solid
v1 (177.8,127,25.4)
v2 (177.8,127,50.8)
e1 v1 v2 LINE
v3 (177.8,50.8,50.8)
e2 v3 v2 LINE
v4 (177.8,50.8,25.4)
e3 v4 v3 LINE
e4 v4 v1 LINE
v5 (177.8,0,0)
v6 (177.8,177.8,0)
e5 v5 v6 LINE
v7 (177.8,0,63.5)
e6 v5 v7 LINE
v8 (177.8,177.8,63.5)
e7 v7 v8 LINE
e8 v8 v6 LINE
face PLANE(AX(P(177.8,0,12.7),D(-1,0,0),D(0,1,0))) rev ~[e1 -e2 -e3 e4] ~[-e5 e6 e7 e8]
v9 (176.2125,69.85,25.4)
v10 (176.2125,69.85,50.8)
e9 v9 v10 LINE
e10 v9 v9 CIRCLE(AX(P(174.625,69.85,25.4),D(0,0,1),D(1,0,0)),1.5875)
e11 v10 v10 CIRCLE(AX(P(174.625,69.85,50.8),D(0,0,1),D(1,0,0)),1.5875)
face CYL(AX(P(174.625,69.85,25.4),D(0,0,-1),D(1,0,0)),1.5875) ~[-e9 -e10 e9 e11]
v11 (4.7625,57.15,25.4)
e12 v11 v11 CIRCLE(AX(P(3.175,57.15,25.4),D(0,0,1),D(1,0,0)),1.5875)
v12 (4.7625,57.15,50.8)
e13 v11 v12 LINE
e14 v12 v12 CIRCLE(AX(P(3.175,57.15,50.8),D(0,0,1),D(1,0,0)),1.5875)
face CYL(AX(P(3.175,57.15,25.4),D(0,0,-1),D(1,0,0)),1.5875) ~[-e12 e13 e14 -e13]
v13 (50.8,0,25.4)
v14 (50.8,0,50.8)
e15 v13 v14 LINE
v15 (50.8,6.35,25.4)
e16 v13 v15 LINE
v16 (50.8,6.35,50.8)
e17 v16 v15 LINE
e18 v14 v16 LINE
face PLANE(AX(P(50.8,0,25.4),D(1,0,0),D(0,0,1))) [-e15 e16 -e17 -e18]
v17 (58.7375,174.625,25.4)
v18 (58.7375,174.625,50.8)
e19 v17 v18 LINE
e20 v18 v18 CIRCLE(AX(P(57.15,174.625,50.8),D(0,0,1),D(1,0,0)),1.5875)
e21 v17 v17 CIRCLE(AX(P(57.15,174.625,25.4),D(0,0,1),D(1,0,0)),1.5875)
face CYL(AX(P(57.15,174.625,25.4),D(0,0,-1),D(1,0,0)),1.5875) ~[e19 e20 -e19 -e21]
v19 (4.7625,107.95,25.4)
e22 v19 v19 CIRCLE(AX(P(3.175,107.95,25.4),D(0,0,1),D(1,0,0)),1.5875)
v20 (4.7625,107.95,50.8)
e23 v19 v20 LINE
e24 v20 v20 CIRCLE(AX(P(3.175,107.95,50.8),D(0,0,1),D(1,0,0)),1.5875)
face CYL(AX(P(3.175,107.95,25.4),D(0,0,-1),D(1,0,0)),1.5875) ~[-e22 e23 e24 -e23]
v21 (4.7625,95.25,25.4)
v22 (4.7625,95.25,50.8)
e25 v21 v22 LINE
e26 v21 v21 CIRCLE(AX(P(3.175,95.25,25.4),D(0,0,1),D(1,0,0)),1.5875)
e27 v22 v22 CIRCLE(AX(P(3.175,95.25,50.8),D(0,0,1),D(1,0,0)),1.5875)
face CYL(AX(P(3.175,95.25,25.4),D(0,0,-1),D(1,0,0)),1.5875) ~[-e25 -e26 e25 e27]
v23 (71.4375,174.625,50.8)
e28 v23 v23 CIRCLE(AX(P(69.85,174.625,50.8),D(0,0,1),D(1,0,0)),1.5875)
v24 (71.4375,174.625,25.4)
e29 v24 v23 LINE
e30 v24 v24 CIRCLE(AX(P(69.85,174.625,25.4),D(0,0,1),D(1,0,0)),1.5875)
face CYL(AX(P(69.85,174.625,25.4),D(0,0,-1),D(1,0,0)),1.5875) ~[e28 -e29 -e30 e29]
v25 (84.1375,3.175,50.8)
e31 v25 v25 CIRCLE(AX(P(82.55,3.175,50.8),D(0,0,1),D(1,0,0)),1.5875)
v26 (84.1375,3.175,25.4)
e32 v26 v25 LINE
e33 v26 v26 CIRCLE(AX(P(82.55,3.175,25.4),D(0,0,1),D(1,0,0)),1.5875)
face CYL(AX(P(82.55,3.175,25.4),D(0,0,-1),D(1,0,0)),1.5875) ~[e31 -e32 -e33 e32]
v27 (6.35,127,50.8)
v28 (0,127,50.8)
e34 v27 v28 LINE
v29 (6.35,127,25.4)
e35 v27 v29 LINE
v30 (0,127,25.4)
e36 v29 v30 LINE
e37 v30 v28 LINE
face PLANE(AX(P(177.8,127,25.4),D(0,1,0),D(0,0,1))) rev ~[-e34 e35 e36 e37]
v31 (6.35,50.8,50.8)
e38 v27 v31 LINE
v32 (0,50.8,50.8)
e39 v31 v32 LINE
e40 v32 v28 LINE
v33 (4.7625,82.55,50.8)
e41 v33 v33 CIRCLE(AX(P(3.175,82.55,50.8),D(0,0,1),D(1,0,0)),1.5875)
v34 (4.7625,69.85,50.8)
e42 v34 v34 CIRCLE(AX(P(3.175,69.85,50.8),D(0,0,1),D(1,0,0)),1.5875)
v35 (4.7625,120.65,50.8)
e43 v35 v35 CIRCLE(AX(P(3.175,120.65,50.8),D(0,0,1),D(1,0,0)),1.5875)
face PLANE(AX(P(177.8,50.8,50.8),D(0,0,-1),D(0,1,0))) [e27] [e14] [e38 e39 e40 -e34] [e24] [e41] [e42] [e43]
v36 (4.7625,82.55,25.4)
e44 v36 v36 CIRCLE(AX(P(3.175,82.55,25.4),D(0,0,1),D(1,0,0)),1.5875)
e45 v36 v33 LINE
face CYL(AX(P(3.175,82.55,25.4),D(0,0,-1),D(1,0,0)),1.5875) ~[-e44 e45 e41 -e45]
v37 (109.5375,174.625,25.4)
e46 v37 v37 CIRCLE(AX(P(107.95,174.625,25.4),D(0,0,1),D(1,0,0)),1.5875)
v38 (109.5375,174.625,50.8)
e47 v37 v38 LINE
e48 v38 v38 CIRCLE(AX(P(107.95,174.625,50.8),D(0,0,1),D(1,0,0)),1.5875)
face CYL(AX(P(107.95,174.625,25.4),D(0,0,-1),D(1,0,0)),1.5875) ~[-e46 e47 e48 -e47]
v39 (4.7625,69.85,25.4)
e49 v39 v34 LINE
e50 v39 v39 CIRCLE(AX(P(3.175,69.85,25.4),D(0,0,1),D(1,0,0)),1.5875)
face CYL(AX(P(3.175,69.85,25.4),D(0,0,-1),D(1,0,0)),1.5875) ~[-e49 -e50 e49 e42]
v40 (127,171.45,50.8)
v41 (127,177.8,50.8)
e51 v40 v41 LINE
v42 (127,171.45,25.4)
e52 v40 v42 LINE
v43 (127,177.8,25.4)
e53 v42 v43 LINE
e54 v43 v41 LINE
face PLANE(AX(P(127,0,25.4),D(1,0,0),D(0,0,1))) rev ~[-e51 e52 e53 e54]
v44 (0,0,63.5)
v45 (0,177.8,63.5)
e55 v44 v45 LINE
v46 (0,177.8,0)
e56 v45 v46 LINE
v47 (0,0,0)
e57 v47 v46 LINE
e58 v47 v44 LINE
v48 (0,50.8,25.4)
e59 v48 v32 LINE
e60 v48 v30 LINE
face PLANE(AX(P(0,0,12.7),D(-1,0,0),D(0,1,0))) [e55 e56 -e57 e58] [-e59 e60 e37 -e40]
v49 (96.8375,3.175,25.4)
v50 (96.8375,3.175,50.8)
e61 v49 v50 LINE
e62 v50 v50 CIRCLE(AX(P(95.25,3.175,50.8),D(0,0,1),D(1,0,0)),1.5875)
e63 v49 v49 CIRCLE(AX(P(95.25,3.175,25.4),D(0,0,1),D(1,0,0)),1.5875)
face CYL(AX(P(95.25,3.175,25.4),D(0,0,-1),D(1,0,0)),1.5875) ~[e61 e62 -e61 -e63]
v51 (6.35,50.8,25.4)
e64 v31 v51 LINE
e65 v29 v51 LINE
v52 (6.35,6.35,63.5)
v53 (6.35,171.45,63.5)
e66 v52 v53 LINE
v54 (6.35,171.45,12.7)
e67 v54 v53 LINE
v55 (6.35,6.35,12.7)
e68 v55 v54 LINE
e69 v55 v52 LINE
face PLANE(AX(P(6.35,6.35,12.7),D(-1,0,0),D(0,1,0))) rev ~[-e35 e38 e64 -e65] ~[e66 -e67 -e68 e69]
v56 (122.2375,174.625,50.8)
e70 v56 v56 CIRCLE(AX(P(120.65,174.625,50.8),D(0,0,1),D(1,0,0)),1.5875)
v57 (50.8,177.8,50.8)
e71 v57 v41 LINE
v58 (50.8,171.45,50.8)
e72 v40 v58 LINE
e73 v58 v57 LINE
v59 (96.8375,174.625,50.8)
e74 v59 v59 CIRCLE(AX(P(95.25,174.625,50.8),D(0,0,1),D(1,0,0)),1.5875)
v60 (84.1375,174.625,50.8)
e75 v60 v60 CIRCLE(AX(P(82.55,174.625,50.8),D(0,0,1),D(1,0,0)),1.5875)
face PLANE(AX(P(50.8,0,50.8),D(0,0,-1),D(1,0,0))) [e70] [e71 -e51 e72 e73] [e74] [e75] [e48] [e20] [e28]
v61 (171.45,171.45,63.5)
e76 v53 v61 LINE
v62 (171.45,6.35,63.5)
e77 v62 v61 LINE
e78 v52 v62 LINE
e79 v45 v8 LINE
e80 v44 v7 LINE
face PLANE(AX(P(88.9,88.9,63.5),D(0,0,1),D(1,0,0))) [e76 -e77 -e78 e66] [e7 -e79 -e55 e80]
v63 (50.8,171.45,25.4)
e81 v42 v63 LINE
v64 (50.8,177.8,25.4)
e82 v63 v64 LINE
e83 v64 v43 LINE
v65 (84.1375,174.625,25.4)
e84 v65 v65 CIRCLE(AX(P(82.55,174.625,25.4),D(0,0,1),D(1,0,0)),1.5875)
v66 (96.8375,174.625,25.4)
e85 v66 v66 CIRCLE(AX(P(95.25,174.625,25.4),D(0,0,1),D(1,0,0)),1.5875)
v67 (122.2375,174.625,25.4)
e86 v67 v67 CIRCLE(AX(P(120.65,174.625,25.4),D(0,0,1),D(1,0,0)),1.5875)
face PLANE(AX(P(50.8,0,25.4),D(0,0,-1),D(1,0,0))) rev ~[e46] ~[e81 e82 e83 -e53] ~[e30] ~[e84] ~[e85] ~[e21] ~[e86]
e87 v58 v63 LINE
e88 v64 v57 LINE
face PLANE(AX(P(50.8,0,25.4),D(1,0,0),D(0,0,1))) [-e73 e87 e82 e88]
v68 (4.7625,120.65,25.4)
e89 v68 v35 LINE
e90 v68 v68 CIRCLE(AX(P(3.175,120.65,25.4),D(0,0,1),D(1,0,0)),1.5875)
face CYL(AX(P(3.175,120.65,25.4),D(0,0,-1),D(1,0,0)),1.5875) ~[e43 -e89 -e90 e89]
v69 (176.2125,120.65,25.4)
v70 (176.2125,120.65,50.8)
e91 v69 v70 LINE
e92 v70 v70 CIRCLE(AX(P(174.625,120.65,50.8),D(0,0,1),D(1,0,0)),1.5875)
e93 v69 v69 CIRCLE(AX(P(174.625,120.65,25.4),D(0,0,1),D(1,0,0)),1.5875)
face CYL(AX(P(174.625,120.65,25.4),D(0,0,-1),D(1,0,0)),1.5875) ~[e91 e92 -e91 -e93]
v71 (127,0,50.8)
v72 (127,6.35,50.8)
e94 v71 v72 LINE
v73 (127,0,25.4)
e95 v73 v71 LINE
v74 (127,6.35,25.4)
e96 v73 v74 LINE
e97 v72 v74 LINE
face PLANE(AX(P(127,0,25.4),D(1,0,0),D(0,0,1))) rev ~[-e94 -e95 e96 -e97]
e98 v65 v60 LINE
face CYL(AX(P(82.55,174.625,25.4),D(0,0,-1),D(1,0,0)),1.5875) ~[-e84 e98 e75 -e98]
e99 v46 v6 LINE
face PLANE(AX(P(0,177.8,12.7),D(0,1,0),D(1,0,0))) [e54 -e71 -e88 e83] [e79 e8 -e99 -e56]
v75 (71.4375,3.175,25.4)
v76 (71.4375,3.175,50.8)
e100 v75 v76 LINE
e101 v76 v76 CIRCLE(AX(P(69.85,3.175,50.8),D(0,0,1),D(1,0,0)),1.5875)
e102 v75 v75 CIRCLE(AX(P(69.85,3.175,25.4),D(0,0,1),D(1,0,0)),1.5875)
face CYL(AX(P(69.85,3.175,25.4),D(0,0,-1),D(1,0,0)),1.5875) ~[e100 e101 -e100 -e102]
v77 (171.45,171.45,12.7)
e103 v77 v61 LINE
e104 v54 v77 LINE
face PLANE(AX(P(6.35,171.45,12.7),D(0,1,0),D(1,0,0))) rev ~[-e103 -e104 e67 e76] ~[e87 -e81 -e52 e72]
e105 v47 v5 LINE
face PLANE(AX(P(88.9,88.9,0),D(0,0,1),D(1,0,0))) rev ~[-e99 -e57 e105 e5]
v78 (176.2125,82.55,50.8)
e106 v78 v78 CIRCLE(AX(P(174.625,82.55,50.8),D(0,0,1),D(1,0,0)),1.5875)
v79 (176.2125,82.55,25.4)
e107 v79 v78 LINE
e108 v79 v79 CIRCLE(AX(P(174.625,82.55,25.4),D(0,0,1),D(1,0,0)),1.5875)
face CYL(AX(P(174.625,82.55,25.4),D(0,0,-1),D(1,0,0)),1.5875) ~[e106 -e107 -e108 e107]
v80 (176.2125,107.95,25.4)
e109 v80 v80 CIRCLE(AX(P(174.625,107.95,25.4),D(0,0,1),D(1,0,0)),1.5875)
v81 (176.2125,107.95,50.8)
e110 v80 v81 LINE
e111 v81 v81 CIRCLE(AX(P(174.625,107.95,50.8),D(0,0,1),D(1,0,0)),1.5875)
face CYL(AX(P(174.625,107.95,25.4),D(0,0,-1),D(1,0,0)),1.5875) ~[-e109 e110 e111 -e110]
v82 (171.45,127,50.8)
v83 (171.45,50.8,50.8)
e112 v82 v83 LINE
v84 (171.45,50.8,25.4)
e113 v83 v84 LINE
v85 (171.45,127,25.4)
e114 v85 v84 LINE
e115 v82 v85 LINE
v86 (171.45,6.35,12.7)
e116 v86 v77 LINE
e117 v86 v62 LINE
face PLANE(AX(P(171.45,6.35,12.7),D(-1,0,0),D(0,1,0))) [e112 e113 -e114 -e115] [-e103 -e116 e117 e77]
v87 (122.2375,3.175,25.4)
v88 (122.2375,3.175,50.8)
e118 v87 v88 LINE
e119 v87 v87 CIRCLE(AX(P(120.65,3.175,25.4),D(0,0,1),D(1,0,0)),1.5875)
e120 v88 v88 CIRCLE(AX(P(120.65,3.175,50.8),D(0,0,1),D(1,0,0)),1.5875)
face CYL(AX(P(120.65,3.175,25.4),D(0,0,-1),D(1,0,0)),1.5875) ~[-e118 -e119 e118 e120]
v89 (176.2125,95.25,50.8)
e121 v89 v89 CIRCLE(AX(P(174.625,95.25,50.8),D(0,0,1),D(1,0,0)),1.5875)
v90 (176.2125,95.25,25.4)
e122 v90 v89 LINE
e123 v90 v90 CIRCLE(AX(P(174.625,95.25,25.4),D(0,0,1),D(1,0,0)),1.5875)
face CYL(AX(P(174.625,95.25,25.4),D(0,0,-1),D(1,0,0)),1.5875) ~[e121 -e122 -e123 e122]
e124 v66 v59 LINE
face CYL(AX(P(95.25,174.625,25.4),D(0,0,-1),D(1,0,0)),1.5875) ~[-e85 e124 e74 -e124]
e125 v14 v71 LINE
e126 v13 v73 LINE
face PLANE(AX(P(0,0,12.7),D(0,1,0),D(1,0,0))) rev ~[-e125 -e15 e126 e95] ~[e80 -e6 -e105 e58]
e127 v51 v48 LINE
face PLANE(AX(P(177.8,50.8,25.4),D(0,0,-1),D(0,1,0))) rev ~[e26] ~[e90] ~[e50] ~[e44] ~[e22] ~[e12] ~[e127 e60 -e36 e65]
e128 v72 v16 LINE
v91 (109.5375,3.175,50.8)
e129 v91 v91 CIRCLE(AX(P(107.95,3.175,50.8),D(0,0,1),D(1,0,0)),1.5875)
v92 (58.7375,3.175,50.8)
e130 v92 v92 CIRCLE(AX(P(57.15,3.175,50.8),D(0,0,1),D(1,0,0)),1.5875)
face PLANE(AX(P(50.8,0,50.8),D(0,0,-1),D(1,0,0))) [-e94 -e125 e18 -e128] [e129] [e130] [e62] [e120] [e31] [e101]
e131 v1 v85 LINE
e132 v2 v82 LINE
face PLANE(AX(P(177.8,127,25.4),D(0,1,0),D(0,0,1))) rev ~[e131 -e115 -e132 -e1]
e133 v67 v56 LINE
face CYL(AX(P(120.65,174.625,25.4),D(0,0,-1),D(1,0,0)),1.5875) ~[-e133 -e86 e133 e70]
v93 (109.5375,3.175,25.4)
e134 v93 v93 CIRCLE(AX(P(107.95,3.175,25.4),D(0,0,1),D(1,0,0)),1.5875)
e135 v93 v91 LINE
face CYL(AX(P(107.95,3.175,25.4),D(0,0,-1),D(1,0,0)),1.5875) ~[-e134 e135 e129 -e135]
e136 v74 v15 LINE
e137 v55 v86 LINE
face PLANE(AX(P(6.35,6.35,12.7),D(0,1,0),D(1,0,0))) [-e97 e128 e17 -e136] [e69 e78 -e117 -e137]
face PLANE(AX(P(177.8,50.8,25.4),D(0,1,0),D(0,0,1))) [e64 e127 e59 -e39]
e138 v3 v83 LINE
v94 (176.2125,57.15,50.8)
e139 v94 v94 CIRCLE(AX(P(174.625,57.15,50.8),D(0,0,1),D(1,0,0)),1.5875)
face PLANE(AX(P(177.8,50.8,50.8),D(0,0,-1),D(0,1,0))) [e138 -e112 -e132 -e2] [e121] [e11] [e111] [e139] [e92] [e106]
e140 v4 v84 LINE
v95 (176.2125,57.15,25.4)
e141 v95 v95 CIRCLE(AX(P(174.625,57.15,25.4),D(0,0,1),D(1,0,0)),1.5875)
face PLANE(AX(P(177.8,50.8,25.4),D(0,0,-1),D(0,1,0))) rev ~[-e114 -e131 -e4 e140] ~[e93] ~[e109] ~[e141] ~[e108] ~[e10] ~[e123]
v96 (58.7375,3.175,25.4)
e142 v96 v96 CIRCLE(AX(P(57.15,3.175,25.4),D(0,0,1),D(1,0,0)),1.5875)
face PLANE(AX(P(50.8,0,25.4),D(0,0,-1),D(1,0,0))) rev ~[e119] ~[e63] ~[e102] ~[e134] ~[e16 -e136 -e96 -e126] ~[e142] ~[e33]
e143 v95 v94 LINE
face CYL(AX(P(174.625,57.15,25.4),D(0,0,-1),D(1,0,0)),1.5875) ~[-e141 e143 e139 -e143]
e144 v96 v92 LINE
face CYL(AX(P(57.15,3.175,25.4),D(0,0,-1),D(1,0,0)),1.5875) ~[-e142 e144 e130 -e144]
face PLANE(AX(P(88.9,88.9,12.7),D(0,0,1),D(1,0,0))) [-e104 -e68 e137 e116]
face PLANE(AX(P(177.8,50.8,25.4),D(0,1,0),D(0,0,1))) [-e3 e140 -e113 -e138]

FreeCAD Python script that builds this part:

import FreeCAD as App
import Part
import Sketcher
Q = App.Units.Quantity


def add_polygon(sketch, points):
    """Adds a closed chain of lines whose ends are joined by coincident constraints."""
    first, n = sketch.GeometryCount, len(points)
    for a, b in zip(points, points[1:] + points[:1]):
        sketch.addGeometry(Part.LineSegment(App.Vector(*a, 0), App.Vector(*b, 0)), False)
    for i in range(n):
        sketch.addConstraint(Sketcher.Constraint("Coincident", first + i, 2, first + (i + 1) % n, 1))

doc = App.newDocument("Part")
body = doc.addObject("PartDesign::Body", "Body")

# Sketch on XY plane
sketch1 = body.newObject("Sketcher::SketchObject", "Sketch")
sketch1.AttachmentSupport = (doc.getObject("XY_Plane"), [""])
sketch1.MapMode = "FlatFace"
add_polygon(sketch1, [(0, 178), (0, 0), (178, 0), (178, 178)])  # lines 0-3
sketch1.addConstraint([
    Sketcher.Constraint("Vertical", 0),
    Sketcher.Constraint("Horizontal", 1),
    Sketcher.Constraint("Vertical", 2),
    Sketcher.Constraint("Horizontal", 3),
    Sketcher.Constraint("Coincident", 0, 2, -1, 1),
    Sketcher.Constraint("Equal", 3, 0),
    Sketcher.Constraint("DistanceX", 1, 1, 1, 2, Q("7 in")),
])
pad1 = body.newObject("PartDesign::Pad", "Pad")
pad1.Profile = sketch1
pad1.Length = Q("0.5 in")

# Sketch on XY plane
sketch2 = body.newObject("Sketcher::SketchObject", "Sketch001")
sketch2.AttachmentSupport = (doc.getObject("XY_Plane"), [""])
sketch2.MapMode = "FlatFace"
sketch2.AttachmentOffset = App.Placement(App.Vector(0, 0, 0.5 * 25.4), App.Rotation())
add_polygon(sketch2, [(0, 178), (0, 0), (178, 0), (178, 178)])  # lines 0-3
add_polygon(sketch2, [(171, 6), (6, 6), (6, 171), (171, 171)])  # lines 4-7
sketch2.addConstraint([
    Sketcher.Constraint("Vertical", 0),
    Sketcher.Constraint("Horizontal", 1),
    Sketcher.Constraint("Vertical", 2),
    Sketcher.Constraint("Horizontal", 3),
    Sketcher.Constraint("Horizontal", 4),
    Sketcher.Constraint("Vertical", 5),
    Sketcher.Constraint("Horizontal", 6),
    Sketcher.Constraint("Vertical", 7),
    Sketcher.Constraint("Coincident", 0, 2, -1, 1),
    Sketcher.Constraint("Equal", 3, 0),
    Sketcher.Constraint("Equal", 6, 5),
    Sketcher.Constraint("DistanceX", 1, 1, 1, 2, Q("7 in")),
    Sketcher.Constraint("DistanceX", 4, 2, 4, 1, Q("6.5 in")),
    Sketcher.Constraint("DistanceX", -1, 1, 4, 2, Q("0.25 in")),
    Sketcher.Constraint("DistanceY", -1, 1, 4, 2, Q("0.25 in")),
])
pad2 = body.newObject("PartDesign::Pad", "Pad001")
pad2.Profile = sketch2
pad2.Length = Q("2 in")

# Sketch on YZ plane
sketch3 = body.newObject("Sketcher::SketchObject", "Sketch002")
sketch3.AttachmentSupport = (doc.getObject("YZ_Plane"), [""])
sketch3.MapMode = "FlatFace"
sketch3.AttachmentOffset = App.Placement(App.Vector(0, 0, 7 * 25.4), App.Rotation())
add_polygon(sketch3, [(51, 51), (51, 25), (127, 25), (127, 51)])  # lines 0-3
sketch3.addConstraint([
    Sketcher.Constraint("Vertical", 0),
    Sketcher.Constraint("Horizontal", 1),
    Sketcher.Constraint("Vertical", 2),
    Sketcher.Constraint("Horizontal", 3),
    Sketcher.Constraint("DistanceX", 1, 1, 1, 2, Q("3 in")),
    Sketcher.Constraint("DistanceY", 0, 2, 0, 1, Q("1 in")),
    Sketcher.Constraint("DistanceX", -1, 1, 0, 2, Q("2 in")),
    Sketcher.Constraint("DistanceY", -1, 1, 0, 2, Q("1 in")),
])
pocket1 = body.newObject("PartDesign::Pocket", "Pocket")
pocket1.Profile = sketch3
pocket1.Type = "ThroughAll"

# Sketch on XZ plane
sketch4 = body.newObject("Sketcher::SketchObject", "Sketch003")
sketch4.AttachmentSupport = (doc.getObject("XZ_Plane"), [""])
sketch4.MapMode = "FlatFace"
add_polygon(sketch4, [(51, 51), (51, 25), (127, 25), (127, 51)])  # lines 0-3
sketch4.addConstraint([
    Sketcher.Constraint("Vertical", 0),
    Sketcher.Constraint("Horizontal", 1),
    Sketcher.Constraint("Vertical", 2),
    Sketcher.Constraint("Horizontal", 3),
    Sketcher.Constraint("DistanceX", 1, 1, 1, 2, Q("3 in")),
    Sketcher.Constraint("DistanceY", 0, 2, 0, 1, Q("1 in")),
    Sketcher.Constraint("DistanceX", -1, 1, 0, 2, Q("2 in")),
    Sketcher.Constraint("DistanceY", -1, 1, 0, 2, Q("1 in")),
])
pocket2 = body.newObject("PartDesign::Pocket", "Pocket001")
pocket2.Profile = sketch4
pocket2.Type = "ThroughAll"

# Sketch on XY plane
sketch5 = body.newObject("Sketcher::SketchObject", "Sketch004")
sketch5.AttachmentSupport = (doc.getObject("XY_Plane"), [""])
sketch5.MapMode = "FlatFace"
sketch5.AttachmentOffset = App.Placement(App.Vector(0, 0, 1 * 25.4), App.Rotation())
sketch5.addGeometry([
    Part.Circle(App.Vector(174.6, 69.8, 0), App.Vector(0, 0, 1), 1.6),  # 0
    Part.Circle(App.Vector(174.6, 57.1, 0), App.Vector(0, 0, 1), 1.6),  # 1
    Part.Circle(App.Vector(174.6, 82.5, 0), App.Vector(0, 0, 1), 1.6),  # 2
    Part.Circle(App.Vector(174.6, 108, 0), App.Vector(0, 0, 1), 1.6),  # 3
    Part.Circle(App.Vector(174.6, 120.7, 0), App.Vector(0, 0, 1), 1.6),  # 4
    Part.Circle(App.Vector(174.6, 95.2, 0), App.Vector(0, 0, 1), 1.6),  # 5
    Part.Circle(App.Vector(69.8, 174.6, 0), App.Vector(0, 0, 1), 1.6),  # 6
    Part.Circle(App.Vector(57.1, 174.6, 0), App.Vector(0, 0, 1), 1.6),  # 7
    Part.Circle(App.Vector(82.5, 174.6, 0), App.Vector(0, 0, 1), 1.6),  # 8
    Part.Circle(App.Vector(108, 174.6, 0), App.Vector(0, 0, 1), 1.6),  # 9
    Part.Circle(App.Vector(120.7, 174.6, 0), App.Vector(0, 0, 1), 1.6),  # 10
    Part.Circle(App.Vector(95.2, 174.6, 0), App.Vector(0, 0, 1), 1.6),  # 11
    Part.Circle(App.Vector(69.8, 3.2, 0), App.Vector(0, 0, 1), 1.6),  # 12
    Part.Circle(App.Vector(57.1, 3.2, 0), App.Vector(0, 0, 1), 1.6),  # 13
    Part.Circle(App.Vector(82.5, 3.2, 0), App.Vector(0, 0, 1), 1.6),  # 14
    Part.Circle(App.Vector(108, 3.2, 0), App.Vector(0, 0, 1), 1.6),  # 15
    Part.Circle(App.Vector(120.7, 3.2, 0), App.Vector(0, 0, 1), 1.6),  # 16
    Part.Circle(App.Vector(95.2, 3.2, 0), App.Vector(0, 0, 1), 1.6),  # 17
    Part.Circle(App.Vector(3.2, 69.8, 0), App.Vector(0, 0, 1), 1.6),  # 18
    Part.Circle(App.Vector(3.2, 57.1, 0), App.Vector(0, 0, 1), 1.6),  # 19
    Part.Circle(App.Vector(3.2, 82.5, 0), App.Vector(0, 0, 1), 1.6),  # 20
    Part.Circle(App.Vector(3.2, 108, 0), App.Vector(0, 0, 1), 1.6),  # 21
    Part.Circle(App.Vector(3.2, 120.7, 0), App.Vector(0, 0, 1), 1.6),  # 22
    Part.Circle(App.Vector(3.2, 95.2, 0), App.Vector(0, 0, 1), 1.6),  # 23
], False)
sketch5.addConstraint([
    Sketcher.Constraint("Equal", 0, 1),
    Sketcher.Constraint("Equal", 1, 2),
    Sketcher.Constraint("Equal", 2, 3),
    Sketcher.Constraint("Equal", 3, 4),
    Sketcher.Constraint("Equal", 4, 5),
    Sketcher.Constraint("Equal", 5, 6),
    Sketcher.Constraint("Equal", 6, 7),
    Sketcher.Constraint("Equal", 7, 8),
    Sketcher.Constraint("Equal", 8, 9),
    Sketcher.Constraint("Equal", 9, 10),
    Sketcher.Constraint("Equal", 10, 11),
    Sketcher.Constraint("Equal", 11, 12),
    Sketcher.Constraint("Equal", 12, 13),
    Sketcher.Constraint("Equal", 13, 14),
    Sketcher.Constraint("Equal", 14, 15),
    Sketcher.Constraint("Equal", 15, 16),
    Sketcher.Constraint("Equal", 16, 17),
    Sketcher.Constraint("Equal", 17, 18),
    Sketcher.Constraint("Equal", 18, 19),
    Sketcher.Constraint("Equal", 19, 20),
    Sketcher.Constraint("Equal", 20, 21),
    Sketcher.Constraint("Equal", 21, 22),
    Sketcher.Constraint("Equal", 22, 23),
    Sketcher.Constraint("Horizontal", 6, 3, 7, 3),
    Sketcher.Constraint("Horizontal", 7, 3, 8, 3),
    Sketcher.Constraint("Horizontal", 8, 3, 9, 3),
    Sketcher.Constraint("Horizontal", 9, 3, 10, 3),
    Sketcher.Constraint("Horizontal", 10, 3, 11, 3),
    Sketcher.Constraint("Horizontal", 12, 3, 13, 3),
    Sketcher.Constraint("Horizontal", 13, 3, 14, 3),
    Sketcher.Constraint("Horizontal", 14, 3, 15, 3),
    Sketcher.Constraint("Horizontal", 15, 3, 16, 3),
    Sketcher.Constraint("Horizontal", 16, 3, 17, 3),
    Sketcher.Constraint("Horizontal", 0, 3, 18, 3),
    Sketcher.Constraint("Horizontal", 1, 3, 19, 3),
    Sketcher.Constraint("Horizontal", 2, 3, 20, 3),
    Sketcher.Constraint("Horizontal", 3, 3, 21, 3),
    Sketcher.Constraint("Horizontal", 4, 3, 22, 3),
    Sketcher.Constraint("Horizontal", 5, 3, 23, 3),
    Sketcher.Constraint("Vertical", 0, 3, 1, 3),
    Sketcher.Constraint("Vertical", 1, 3, 2, 3),
    Sketcher.Constraint("Vertical", 2, 3, 3, 3),
    Sketcher.Constraint("Vertical", 3, 3, 4, 3),
    Sketcher.Constraint("Vertical", 4, 3, 5, 3),
    Sketcher.Constraint("Vertical", 6, 3, 12, 3),
    Sketcher.Constraint("Vertical", 7, 3, 13, 3),
    Sketcher.Constraint("Vertical", 8, 3, 14, 3),
    Sketcher.Constraint("Vertical", 9, 3, 15, 3),
    Sketcher.Constraint("Vertical", 10, 3, 16, 3),
    Sketcher.Constraint("Vertical", 11, 3, 17, 3),
    Sketcher.Constraint("Vertical", 18, 3, 19, 3),
    Sketcher.Constraint("Vertical", 19, 3, 20, 3),
    Sketcher.Constraint("Vertical", 20, 3, 21, 3),
    Sketcher.Constraint("Vertical", 21, 3, 22, 3),
    Sketcher.Constraint("Vertical", 22, 3, 23, 3),
    Sketcher.Constraint("Diameter", 0, Q("0.125 in")),
    Sketcher.Constraint("DistanceY", 1, 3, 2, 3, Q("1 in")),
    Sketcher.Constraint("DistanceY", 2, 3, 3, 3, Q("1 in")),
    Sketcher.Constraint("DistanceY", 0, 3, 4, 3, Q("2 in")),
    Sketcher.Constraint("DistanceY", 0, 3, 5, 3, Q("1 in")),
    Sketcher.Constraint("DistanceX", 7, 3, 8, 3, Q("1 in")),
    Sketcher.Constraint("DistanceX", 8, 3, 9, 3, Q("1 in")),
    Sketcher.Constraint("DistanceX", 6, 3, 10, 3, Q("2 in")),
    Sketcher.Constraint("DistanceX", 6, 3, 11, 3, Q("1 in")),
    Sketcher.Constraint("DistanceY", 1, 3, 0, 3, Q("0.5 in")),
    Sketcher.Constraint("DistanceX", 7, 3, 6, 3, Q("0.5 in")),
    Sketcher.Constraint("DistanceY", -1, 1, 0, 3, Q("2.75 in")),
    Sketcher.Constraint("DistanceX", -1, 1, 6, 3, Q("2.75 in")),
    Sketcher.Constraint("DistanceX", -1, 1, 0, 3, Q("6.875 in")),
    Sketcher.Constraint("DistanceY", -1, 1, 6, 3, Q("6.875 in")),
    Sketcher.Constraint("DistanceY", -1, 1, 12, 3, Q("0.125 in")),
    Sketcher.Constraint("DistanceX", -1, 1, 18, 3, Q("0.125 in")),
])
pad3 = body.newObject("PartDesign::Pad", "Pad002")
pad3.Profile = sketch5
pad3.Length = Q("1 in")

doc.recompute()
